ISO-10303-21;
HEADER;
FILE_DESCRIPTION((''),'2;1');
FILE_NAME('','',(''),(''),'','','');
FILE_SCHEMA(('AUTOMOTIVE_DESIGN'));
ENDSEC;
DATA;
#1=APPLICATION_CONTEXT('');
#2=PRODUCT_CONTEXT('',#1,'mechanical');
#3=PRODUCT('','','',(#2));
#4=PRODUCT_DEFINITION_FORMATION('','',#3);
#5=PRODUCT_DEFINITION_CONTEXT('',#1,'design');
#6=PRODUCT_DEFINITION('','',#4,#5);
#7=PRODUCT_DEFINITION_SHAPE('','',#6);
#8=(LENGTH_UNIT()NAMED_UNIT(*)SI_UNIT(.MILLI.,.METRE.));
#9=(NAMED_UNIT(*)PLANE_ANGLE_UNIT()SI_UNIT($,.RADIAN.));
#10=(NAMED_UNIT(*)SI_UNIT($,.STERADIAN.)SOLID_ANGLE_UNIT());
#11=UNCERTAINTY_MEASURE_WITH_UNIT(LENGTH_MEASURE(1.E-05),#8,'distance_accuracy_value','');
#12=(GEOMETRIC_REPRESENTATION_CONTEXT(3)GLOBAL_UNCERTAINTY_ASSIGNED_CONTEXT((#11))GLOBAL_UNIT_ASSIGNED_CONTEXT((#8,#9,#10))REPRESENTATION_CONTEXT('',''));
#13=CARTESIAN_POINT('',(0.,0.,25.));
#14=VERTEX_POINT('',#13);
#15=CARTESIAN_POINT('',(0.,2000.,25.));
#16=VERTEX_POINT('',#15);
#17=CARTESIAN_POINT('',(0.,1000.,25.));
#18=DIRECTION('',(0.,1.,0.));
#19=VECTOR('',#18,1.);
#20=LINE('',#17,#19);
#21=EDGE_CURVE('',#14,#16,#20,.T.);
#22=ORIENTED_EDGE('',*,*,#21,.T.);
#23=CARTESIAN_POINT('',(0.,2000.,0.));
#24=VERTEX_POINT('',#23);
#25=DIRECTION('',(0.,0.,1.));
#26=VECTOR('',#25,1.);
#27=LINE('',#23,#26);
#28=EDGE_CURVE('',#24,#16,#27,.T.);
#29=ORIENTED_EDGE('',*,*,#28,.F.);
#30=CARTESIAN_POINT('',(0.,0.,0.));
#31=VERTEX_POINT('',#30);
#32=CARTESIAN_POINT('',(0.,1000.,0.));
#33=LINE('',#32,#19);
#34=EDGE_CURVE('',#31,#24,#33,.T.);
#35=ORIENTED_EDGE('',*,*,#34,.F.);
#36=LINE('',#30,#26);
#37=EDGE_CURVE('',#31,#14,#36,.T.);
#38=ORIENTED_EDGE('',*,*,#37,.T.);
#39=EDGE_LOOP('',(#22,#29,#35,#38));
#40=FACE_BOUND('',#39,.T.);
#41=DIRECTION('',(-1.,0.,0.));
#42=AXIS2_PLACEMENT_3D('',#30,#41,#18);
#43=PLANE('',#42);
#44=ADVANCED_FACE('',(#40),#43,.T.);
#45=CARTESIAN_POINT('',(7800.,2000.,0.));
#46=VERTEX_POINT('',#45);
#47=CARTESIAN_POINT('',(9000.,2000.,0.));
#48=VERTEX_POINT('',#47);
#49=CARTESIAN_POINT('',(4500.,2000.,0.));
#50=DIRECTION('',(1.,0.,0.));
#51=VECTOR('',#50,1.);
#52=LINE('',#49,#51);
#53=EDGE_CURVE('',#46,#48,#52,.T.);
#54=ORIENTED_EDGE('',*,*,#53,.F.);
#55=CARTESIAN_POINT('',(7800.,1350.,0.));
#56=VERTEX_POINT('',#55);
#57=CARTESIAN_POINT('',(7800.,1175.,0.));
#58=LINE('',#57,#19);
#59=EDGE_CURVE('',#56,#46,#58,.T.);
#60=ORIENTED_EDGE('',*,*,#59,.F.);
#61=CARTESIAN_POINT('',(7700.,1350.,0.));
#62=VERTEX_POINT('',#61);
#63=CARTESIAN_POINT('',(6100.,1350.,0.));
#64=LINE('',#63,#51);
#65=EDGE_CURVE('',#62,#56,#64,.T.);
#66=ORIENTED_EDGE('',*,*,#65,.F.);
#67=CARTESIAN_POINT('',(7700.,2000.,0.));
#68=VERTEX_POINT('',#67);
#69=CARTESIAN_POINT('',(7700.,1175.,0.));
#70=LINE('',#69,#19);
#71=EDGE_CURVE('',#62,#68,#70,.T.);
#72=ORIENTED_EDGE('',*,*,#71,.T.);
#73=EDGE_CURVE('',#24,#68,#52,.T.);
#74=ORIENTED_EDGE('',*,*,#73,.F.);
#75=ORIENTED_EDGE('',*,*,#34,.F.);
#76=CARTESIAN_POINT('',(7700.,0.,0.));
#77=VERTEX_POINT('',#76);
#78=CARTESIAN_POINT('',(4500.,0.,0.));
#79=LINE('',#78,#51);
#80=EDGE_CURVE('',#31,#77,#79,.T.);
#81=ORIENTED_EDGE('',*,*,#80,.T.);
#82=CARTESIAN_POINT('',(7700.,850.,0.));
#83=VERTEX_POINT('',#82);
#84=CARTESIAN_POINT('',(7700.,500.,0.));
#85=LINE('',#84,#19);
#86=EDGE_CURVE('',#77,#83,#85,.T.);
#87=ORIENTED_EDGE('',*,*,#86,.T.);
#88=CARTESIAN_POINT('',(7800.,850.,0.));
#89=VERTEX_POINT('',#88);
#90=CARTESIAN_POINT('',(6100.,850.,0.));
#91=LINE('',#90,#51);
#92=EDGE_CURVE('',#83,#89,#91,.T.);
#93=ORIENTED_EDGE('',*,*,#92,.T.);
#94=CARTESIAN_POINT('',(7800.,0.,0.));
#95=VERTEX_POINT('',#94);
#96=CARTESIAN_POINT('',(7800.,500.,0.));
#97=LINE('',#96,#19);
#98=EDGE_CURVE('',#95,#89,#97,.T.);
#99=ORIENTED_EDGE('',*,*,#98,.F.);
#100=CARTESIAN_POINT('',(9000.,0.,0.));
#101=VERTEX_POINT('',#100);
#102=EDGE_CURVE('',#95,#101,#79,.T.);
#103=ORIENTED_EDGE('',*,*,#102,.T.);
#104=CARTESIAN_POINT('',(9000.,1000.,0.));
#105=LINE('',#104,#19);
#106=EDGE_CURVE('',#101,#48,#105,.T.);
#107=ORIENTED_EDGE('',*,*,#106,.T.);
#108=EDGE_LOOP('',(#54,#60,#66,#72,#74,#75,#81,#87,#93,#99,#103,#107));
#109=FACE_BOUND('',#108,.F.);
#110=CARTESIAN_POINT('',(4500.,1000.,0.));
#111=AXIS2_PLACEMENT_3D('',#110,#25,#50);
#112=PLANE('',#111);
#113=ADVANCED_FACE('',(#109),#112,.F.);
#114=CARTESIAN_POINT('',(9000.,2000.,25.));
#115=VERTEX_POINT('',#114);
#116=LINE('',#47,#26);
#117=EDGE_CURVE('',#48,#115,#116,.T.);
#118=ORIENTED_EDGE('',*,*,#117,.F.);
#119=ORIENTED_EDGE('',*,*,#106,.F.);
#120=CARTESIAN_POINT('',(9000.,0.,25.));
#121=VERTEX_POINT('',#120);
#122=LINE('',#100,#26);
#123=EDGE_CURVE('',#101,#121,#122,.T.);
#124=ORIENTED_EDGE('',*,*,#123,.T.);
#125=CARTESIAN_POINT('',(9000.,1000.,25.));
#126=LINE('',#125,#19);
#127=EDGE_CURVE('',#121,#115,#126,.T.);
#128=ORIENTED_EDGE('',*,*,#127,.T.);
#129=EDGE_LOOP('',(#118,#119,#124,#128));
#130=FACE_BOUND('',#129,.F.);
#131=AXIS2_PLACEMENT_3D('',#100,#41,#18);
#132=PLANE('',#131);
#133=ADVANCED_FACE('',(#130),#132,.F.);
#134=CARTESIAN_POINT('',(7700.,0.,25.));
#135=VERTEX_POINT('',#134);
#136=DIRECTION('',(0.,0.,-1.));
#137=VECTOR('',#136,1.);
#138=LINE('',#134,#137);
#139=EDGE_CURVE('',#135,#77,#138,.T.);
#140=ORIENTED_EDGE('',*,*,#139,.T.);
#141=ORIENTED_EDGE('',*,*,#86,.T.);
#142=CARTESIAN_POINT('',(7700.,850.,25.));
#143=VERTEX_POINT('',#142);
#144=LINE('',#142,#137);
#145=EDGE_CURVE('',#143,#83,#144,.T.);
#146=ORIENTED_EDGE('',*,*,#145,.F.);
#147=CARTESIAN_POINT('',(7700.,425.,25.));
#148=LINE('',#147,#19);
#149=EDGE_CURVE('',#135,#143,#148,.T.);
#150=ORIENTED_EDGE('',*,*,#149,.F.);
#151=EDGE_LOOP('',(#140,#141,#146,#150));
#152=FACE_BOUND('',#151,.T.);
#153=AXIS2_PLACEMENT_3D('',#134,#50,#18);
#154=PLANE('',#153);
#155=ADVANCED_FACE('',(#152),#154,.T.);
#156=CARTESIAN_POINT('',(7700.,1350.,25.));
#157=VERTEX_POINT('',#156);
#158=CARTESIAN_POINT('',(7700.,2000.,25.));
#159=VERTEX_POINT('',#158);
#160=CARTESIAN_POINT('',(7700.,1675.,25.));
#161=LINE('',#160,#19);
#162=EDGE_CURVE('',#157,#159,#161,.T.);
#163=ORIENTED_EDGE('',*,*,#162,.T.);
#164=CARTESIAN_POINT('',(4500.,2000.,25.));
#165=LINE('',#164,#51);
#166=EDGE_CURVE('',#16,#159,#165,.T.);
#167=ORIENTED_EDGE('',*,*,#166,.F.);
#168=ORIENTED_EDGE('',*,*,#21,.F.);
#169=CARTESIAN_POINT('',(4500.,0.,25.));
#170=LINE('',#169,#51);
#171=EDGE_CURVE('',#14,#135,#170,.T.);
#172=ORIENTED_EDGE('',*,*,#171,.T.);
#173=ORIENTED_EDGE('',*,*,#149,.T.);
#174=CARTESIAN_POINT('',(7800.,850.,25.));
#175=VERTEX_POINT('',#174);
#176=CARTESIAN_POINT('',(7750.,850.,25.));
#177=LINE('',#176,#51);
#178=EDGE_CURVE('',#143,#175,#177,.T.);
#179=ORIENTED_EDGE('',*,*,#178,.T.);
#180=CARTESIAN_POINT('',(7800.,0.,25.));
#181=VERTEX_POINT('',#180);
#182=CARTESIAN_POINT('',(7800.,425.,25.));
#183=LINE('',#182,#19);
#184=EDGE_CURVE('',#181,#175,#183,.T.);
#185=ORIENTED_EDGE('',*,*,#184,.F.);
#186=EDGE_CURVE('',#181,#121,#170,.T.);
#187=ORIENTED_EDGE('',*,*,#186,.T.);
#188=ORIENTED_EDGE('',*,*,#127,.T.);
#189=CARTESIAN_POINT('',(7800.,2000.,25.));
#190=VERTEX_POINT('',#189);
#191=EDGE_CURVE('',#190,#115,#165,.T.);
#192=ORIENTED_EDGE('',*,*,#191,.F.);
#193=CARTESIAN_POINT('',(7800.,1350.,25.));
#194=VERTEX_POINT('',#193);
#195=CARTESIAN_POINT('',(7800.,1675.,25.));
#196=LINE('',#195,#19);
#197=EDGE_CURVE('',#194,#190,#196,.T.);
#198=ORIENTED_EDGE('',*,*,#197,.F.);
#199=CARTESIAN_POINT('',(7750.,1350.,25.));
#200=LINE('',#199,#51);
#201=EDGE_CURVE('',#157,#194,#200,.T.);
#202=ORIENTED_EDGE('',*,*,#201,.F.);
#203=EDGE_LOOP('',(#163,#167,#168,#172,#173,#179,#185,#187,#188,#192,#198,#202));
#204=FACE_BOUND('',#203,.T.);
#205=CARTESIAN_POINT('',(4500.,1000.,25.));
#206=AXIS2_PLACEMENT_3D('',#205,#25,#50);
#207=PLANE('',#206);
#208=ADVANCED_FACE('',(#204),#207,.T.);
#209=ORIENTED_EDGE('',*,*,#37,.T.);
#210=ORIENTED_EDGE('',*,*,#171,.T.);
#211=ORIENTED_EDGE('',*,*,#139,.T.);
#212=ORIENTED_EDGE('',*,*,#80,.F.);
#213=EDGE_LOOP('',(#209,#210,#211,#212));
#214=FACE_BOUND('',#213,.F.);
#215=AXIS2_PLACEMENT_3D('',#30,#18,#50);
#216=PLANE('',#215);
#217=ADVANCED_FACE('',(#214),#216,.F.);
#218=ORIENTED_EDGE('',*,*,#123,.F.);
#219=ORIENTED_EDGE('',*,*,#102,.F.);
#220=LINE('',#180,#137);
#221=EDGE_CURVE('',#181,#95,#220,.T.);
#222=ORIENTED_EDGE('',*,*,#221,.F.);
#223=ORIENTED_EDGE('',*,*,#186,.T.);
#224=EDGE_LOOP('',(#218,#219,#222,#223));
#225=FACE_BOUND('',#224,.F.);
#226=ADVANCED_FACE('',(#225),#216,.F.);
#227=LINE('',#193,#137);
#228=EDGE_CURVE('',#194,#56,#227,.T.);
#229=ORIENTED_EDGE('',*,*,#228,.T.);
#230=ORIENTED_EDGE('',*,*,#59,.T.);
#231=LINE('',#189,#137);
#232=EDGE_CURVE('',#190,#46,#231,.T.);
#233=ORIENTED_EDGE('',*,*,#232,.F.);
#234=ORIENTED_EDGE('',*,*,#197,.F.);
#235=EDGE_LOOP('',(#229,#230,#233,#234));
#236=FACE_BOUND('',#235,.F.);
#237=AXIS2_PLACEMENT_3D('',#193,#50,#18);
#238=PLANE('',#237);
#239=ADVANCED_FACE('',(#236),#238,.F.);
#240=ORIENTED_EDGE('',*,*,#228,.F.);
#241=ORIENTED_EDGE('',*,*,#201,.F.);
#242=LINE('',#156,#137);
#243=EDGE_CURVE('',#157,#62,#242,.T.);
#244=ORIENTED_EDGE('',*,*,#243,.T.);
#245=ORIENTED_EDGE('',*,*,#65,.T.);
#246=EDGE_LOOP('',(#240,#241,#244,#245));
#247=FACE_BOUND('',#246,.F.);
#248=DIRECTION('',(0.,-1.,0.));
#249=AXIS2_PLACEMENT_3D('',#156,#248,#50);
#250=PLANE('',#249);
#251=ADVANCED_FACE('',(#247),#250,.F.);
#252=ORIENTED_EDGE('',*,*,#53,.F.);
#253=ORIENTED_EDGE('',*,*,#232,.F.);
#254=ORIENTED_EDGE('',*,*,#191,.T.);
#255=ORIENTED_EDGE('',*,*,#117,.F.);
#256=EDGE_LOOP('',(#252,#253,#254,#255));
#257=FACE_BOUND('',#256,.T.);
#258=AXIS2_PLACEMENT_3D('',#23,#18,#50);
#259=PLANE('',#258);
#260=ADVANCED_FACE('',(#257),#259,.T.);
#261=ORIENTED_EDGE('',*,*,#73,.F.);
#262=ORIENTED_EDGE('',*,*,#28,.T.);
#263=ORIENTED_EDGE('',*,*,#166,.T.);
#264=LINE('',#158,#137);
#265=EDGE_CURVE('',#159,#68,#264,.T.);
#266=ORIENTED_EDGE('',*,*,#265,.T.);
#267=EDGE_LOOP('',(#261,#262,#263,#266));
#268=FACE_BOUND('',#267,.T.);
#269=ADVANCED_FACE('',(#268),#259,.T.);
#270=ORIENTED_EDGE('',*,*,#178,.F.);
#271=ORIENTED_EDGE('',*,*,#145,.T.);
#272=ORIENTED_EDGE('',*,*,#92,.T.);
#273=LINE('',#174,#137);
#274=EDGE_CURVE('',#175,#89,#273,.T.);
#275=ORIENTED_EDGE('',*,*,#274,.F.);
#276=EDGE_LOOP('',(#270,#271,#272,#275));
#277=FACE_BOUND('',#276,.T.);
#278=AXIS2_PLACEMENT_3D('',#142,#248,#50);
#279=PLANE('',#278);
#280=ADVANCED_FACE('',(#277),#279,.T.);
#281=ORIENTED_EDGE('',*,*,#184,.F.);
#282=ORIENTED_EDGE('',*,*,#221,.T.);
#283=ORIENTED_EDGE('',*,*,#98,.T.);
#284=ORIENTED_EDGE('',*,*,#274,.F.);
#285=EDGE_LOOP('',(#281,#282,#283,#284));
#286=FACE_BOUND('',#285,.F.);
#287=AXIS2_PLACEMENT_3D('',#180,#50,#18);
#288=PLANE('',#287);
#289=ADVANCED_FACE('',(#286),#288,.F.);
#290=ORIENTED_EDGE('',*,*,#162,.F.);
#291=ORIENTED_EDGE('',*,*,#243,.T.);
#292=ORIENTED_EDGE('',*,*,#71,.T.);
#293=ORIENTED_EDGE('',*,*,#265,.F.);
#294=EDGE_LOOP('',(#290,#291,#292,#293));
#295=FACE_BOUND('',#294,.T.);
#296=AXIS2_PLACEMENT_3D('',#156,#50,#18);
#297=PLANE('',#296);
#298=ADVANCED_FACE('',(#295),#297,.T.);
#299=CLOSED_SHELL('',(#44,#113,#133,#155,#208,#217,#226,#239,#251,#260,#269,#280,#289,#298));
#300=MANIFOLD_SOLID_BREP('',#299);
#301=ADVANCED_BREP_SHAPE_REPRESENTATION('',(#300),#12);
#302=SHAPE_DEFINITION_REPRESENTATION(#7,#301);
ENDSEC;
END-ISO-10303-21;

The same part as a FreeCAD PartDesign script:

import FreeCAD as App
import Part
import Sketcher

V = App.Vector
Q = App.Units.Quantity

doc = App.newDocument("Part")
params = doc.addObject("Spreadsheet::Sheet", "Params")
for row, (alias, value) in enumerate([
    ("sketch1_width", "9000 mm"),
    ("sketch1_height", "2000 mm"),
    ("pad1_length", "25 mm"),
    ("sketch2_width", "100 mm"),
    ("sketch2_height", "650 mm"),
    ("sketch2_height2", "850 mm"),
], start=1):
    params.set(f"A{row}", alias)
    params.set(f"B{row}", "=" + value)
    params.setAlias(f"B{row}", alias)

body = doc.addObject("PartDesign::Body", "Body")

# Sketch on XY plane
sketch1 = body.newObject("Sketcher::SketchObject", "Sketch")
sketch1.AttachmentSupport = (doc.getObject("XY_Plane"), [""])
sketch1.MapMode = "FlatFace"
sketch1.addGeometry(Part.LineSegment(V(0, 2000, 0), V(0, 0, 0)), False)
sketch1.addGeometry(Part.LineSegment(V(0, 0, 0), V(9000, 0, 0)), False)
sketch1.addGeometry(Part.LineSegment(V(9000, 0, 0), V(9000, 2000, 0)), False)
sketch1.addGeometry(Part.LineSegment(V(9000, 2000, 0), V(0, 2000, 0)), False)
sketch1.addConstraint(Sketcher.Constraint("Coincident", 0, 2, 1, 1))
sketch1.addConstraint(Sketcher.Constraint("Coincident", 1, 2, 2, 1))
sketch1.addConstraint(Sketcher.Constraint("Coincident", 2, 2, 3, 1))
sketch1.addConstraint(Sketcher.Constraint("Coincident", 3, 2, 0, 1))
sketch1.addConstraint(Sketcher.Constraint("Vertical", 0))
sketch1.addConstraint(Sketcher.Constraint("Horizontal", 1))
sketch1.addConstraint(Sketcher.Constraint("Vertical", 2))
sketch1.addConstraint(Sketcher.Constraint("Horizontal", 3))
sketch1.addConstraint(Sketcher.Constraint("Coincident", 0, 2, -1, 1))
sketch1.addConstraint(Sketcher.Constraint("DistanceX", 1, 1, 1, 2, Q("9000 mm")))
sketch1.addConstraint(Sketcher.Constraint("DistanceY", 0, 2, 0, 1, Q("2000 mm")))
sketch1.setExpression("Constraints[9]", "Params.sketch1_width")
sketch1.setExpression("Constraints[10]", "Params.sketch1_height")
pad1 = body.newObject("PartDesign::Pad", "Pad")
pad1.Profile = sketch1
pad1.setExpression("Length", "Params.pad1_length")

# Sketch on XY plane
sketch2 = body.newObject("Sketcher::SketchObject", "Sketch001")
sketch2.AttachmentSupport = (doc.getObject("XY_Plane"), [""])
sketch2.MapMode = "FlatFace"
sketch2.AttachmentOffset = App.Placement(V(0, 0, 25), App.Rotation())
sketch2.addGeometry(Part.LineSegment(V(7700, 2000, 0), V(7700, 1350, 0)), False)
sketch2.addGeometry(Part.LineSegment(V(7700, 1350, 0), V(7800, 1350, 0)), False)
sketch2.addGeometry(Part.LineSegment(V(7800, 1350, 0), V(7800, 2000, 0)), False)
sketch2.addGeometry(Part.LineSegment(V(7800, 2000, 0), V(7700, 2000, 0)), False)
sketch2.addGeometry(Part.LineSegment(V(7700, 850, 0), V(7700, 0, 0)), False)
sketch2.addGeometry(Part.LineSegment(V(7700, 0, 0), V(7800, 0, 0)), False)
sketch2.addGeometry(Part.LineSegment(V(7800, 0, 0), V(7800, 850, 0)), False)
sketch2.addGeometry(Part.LineSegment(V(7800, 850, 0), V(7700, 850, 0)), False)
sketch2.addConstraint(Sketcher.Constraint("Coincident", 0, 2, 1, 1))
sketch2.addConstraint(Sketcher.Constraint("Coincident", 1, 2, 2, 1))
sketch2.addConstraint(Sketcher.Constraint("Coincident", 2, 2, 3, 1))
sketch2.addConstraint(Sketcher.Constraint("Coincident", 3, 2, 0, 1))
sketch2.addConstraint(Sketcher.Constraint("Coincident", 4, 2, 5, 1))
sketch2.addConstraint(Sketcher.Constraint("Coincident", 5, 2, 6, 1))
sketch2.addConstraint(Sketcher.Constraint("Coincident", 6, 2, 7, 1))
sketch2.addConstraint(Sketcher.Constraint("Coincident", 7, 2, 4, 1))
sketch2.addConstraint(Sketcher.Constraint("Vertical", 0))
sketch2.addConstraint(Sketcher.Constraint("Horizontal", 1))
sketch2.addConstraint(Sketcher.Constraint("Vertical", 2))
sketch2.addConstraint(Sketcher.Constraint("Horizontal", 3))
sketch2.addConstraint(Sketcher.Constraint("Vertical", 4))
sketch2.addConstraint(Sketcher.Constraint("Horizontal", 5))
sketch2.addConstraint(Sketcher.Constraint("Vertical", 6))
sketch2.addConstraint(Sketcher.Constraint("Horizontal", 7))
sketch2.addConstraint(Sketcher.Constraint("PointOnObject", 4, 2, -1))
sketch2.addConstraint(Sketcher.Constraint("Vertical", 3, 2, 4, 2))
sketch2.addConstraint(Sketcher.Constraint("Vertical", 2, 2, 5, 2))
sketch2.addConstraint(Sketcher.Constraint("DistanceX", 1, 1, 1, 2, Q("100 mm")))
sketch2.addConstraint(Sketcher.Constraint("DistanceY", 0, 2, 0, 1, Q("650 mm")))
sketch2.addConstraint(Sketcher.Constraint("DistanceY", 4, 2, 4, 1, Q("850 mm")))
sketch2.addConstraint(Sketcher.Constraint("DistanceX", -1, 1, 0, 2, Q("7700 mm")))
sketch2.addConstraint(Sketcher.Constraint("DistanceY", -1, 1, 0, 2, Q("1350 mm")))
sketch2.setExpression("Constraints[19]", "Params.sketch2_width")
sketch2.setExpression("Constraints[20]", "Params.sketch2_height")
sketch2.setExpression("Constraints[21]", "Params.sketch2_height2")
pocket1 = body.newObject("PartDesign::Pocket", "Pocket")
pocket1.Profile = sketch2
pocket1.Type = "ThroughAll"

doc.recompute()
